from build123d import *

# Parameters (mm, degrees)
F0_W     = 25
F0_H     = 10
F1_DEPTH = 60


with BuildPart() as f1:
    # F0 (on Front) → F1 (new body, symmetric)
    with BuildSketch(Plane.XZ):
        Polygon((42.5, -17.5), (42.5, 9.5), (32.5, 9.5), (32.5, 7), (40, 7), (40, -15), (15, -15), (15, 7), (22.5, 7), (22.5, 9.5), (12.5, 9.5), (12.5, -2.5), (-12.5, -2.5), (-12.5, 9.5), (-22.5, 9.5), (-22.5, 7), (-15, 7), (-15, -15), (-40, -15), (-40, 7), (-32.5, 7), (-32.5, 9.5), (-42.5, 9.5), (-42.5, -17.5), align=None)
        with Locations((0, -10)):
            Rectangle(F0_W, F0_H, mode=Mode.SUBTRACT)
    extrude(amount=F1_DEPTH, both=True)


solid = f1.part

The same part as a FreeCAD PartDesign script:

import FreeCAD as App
import Part
import Sketcher
from FreeCAD import Vector


def add_polygon(sketch, points):
    """Adds a closed chain of lines whose ends are joined by coincident constraints."""
    first, n = sketch.GeometryCount, len(points)
    for a, b in zip(points, points[1:] + points[:1]):
        sketch.addGeometry(Part.LineSegment(App.Vector(*a, 0), App.Vector(*b, 0)), False)
    for i in range(n):
        sketch.addConstraint(Sketcher.Constraint("Coincident", first + i, 2, first + (i + 1) % n, 1))

doc = App.newDocument("Part")
params = doc.addObject("Spreadsheet::Sheet", "Params")
for row, (alias, value) in enumerate([
    ("sketch1_width", "10 mm"),
    ("sketch1_width2", "25 mm"),
    ("sketch1_width3", "85 mm"),
    ("sketch1_height", "27 mm"),
    ("sketch1_height2", "22 mm"),
    ("pad1_length", "120 mm"),
], start=1):
    params.set(f"A{row}", alias)
    params.set(f"B{row}", "=" + value)
    params.setAlias(f"B{row}", alias)

body = doc.addObject("PartDesign::Body", "Body")

# Sketch on XZ plane
sketch1 = doc.addObject("Sketcher::SketchObject", "Sketch")
body.addObject(sketch1)
sketch1.AttachmentSupport = (doc.XZ_Plane, [""])
sketch1.MapMode = "FlatFace"
add_polygon(sketch1, [(42.5, -17.5), (42.5, 9.5), (32.5, 9.5), (32.5, 7), (40, 7), (40, -15), (15, -15), (15, 7), (22.5, 7), (22.5, 9.5), (12.5, 9.5), (12.5, -2.5), (-12.5, -2.5), (-12.5, 9.5), (-22.5, 9.5), (-22.5, 7), (-15, 7), (-15, -15), (-40, -15), (-40, 7), (-32.5, 7), (-32.5, 9.5), (-42.5, 9.5), (-42.5, -17.5)])  # lines 0-23
add_polygon(sketch1, [(12.5, -15), (-12.5, -15), (-12.5, -5), (12.5, -5)])  # lines 24-27
sketch1.addConstraint(Sketcher.Constraint("Vertical", 0))
sketch1.addConstraint(Sketcher.Constraint("Horizontal", 1))
sketch1.addConstraint(Sketcher.Constraint("Vertical", 2))
sketch1.addConstraint(Sketcher.Constraint("Horizontal", 3))
sketch1.addConstraint(Sketcher.Constraint("Vertical", 4))
sketch1.addConstraint(Sketcher.Constraint("Horizontal", 5))
sketch1.addConstraint(Sketcher.Constraint("Vertical", 6))
sketch1.addConstraint(Sketcher.Constraint("Horizontal", 7))
sketch1.addConstraint(Sketcher.Constraint("Vertical", 8))
sketch1.addConstraint(Sketcher.Constraint("Horizontal", 9))
sketch1.addConstraint(Sketcher.Constraint("Vertical", 10))
sketch1.addConstraint(Sketcher.Constraint("Horizontal", 11))
sketch1.addConstraint(Sketcher.Constraint("Vertical", 12))
sketch1.addConstraint(Sketcher.Constraint("Horizontal", 13))
sketch1.addConstraint(Sketcher.Constraint("Vertical", 14))
sketch1.addConstraint(Sketcher.Constraint("Horizontal", 15))
sketch1.addConstraint(Sketcher.Constraint("Vertical", 16))
sketch1.addConstraint(Sketcher.Constraint("Horizontal", 17))
sketch1.addConstraint(Sketcher.Constraint("Vertical", 18))
sketch1.addConstraint(Sketcher.Constraint("Horizontal", 19))
sketch1.addConstraint(Sketcher.Constraint("Vertical", 20))
sketch1.addConstraint(Sketcher.Constraint("Horizontal", 21))
sketch1.addConstraint(Sketcher.Constraint("Vertical", 22))
sketch1.addConstraint(Sketcher.Constraint("Horizontal", 23))
sketch1.addConstraint(Sketcher.Constraint("Horizontal", 24))
sketch1.addConstraint(Sketcher.Constraint("Vertical", 25))
sketch1.addConstraint(Sketcher.Constraint("Horizontal", 26))
sketch1.addConstraint(Sketcher.Constraint("Vertical", 27))
sketch1.addConstraint(Sketcher.Constraint("Symmetric", 9, 2, 12, 2, -2))
sketch1.addConstraint(Sketcher.Constraint("Symmetric", 7, 2, 14, 2, -2))
sketch1.addConstraint(Sketcher.Constraint("Symmetric", 5, 2, 16, 2, -2))
sketch1.addConstraint(Sketcher.Constraint("Symmetric", 3, 2, 18, 2, -2))
sketch1.addConstraint(Sketcher.Constraint("Symmetric", 1, 2, 20, 2, -2))
sketch1.addConstraint(Sketcher.Constraint("Horizontal", 3, 2, 6, 2))
sketch1.addConstraint(Sketcher.Constraint("Horizontal", 1, 2, 8, 2))
sketch1.addConstraint(Sketcher.Constraint("Horizontal", 17, 2, 24, 2))
sketch1.addConstraint(Sketcher.Constraint("Vertical", 12, 2, 24, 2))
sketch1.addConstraint(Sketcher.Constraint("Vertical", 10, 2, 26, 2))
sketch1.addConstraint(Sketcher.Constraint("Equal", 3, 7))
sketch1.addConstraint(Sketcher.Constraint("Equal", 1, 9))
sketch1.addConstraint(Sketcher.Constraint("Equal", 5, 11))
sketch1.addConstraint(Sketcher.Constraint("Equal", 13, 21))
sketch1.addConstraint(Sketcher.Constraint("Equal", 21, 25))
sketch1.addConstraint(Sketcher.Constraint("DistanceX", 1, 2, 1, 1, 10.0))
sketch1.addConstraint(Sketcher.Constraint("DistanceX", 5, 2, 5, 1, 25.0))
sketch1.addConstraint(Sketcher.Constraint("DistanceX", 23, 1, 23, 2, 85.0))
sketch1.addConstraint(Sketcher.Constraint("DistanceY", 0, 1, 0, 2, 27.0))
sketch1.addConstraint(Sketcher.Constraint("DistanceY", 4, 2, 4, 1, 22.0))
sketch1.addConstraint(Sketcher.Constraint("DistanceY", 10, 2, 10, 1, 12.0))
sketch1.addConstraint(Sketcher.Constraint("DistanceY", 2, 2, 2, 1, 2.5))
sketch1.addConstraint(Sketcher.Constraint("DistanceY", -1, 1, 2, 2, 7.0))
sketch1.setExpression("Constraints[71]", "Params.sketch1_width")
sketch1.setExpression("Constraints[72]", "Params.sketch1_width2")
sketch1.setExpression("Constraints[73]", "Params.sketch1_width3")
sketch1.setExpression("Constraints[74]", "Params.sketch1_height")
sketch1.setExpression("Constraints[75]", "Params.sketch1_height2")
pad1 = doc.addObject("PartDesign::Pad", "Pad")
body.addObject(pad1)
pad1.Profile = sketch1
pad1.setExpression("Length", "Params.pad1_length")
pad1.Midplane = True

doc.recompute()
